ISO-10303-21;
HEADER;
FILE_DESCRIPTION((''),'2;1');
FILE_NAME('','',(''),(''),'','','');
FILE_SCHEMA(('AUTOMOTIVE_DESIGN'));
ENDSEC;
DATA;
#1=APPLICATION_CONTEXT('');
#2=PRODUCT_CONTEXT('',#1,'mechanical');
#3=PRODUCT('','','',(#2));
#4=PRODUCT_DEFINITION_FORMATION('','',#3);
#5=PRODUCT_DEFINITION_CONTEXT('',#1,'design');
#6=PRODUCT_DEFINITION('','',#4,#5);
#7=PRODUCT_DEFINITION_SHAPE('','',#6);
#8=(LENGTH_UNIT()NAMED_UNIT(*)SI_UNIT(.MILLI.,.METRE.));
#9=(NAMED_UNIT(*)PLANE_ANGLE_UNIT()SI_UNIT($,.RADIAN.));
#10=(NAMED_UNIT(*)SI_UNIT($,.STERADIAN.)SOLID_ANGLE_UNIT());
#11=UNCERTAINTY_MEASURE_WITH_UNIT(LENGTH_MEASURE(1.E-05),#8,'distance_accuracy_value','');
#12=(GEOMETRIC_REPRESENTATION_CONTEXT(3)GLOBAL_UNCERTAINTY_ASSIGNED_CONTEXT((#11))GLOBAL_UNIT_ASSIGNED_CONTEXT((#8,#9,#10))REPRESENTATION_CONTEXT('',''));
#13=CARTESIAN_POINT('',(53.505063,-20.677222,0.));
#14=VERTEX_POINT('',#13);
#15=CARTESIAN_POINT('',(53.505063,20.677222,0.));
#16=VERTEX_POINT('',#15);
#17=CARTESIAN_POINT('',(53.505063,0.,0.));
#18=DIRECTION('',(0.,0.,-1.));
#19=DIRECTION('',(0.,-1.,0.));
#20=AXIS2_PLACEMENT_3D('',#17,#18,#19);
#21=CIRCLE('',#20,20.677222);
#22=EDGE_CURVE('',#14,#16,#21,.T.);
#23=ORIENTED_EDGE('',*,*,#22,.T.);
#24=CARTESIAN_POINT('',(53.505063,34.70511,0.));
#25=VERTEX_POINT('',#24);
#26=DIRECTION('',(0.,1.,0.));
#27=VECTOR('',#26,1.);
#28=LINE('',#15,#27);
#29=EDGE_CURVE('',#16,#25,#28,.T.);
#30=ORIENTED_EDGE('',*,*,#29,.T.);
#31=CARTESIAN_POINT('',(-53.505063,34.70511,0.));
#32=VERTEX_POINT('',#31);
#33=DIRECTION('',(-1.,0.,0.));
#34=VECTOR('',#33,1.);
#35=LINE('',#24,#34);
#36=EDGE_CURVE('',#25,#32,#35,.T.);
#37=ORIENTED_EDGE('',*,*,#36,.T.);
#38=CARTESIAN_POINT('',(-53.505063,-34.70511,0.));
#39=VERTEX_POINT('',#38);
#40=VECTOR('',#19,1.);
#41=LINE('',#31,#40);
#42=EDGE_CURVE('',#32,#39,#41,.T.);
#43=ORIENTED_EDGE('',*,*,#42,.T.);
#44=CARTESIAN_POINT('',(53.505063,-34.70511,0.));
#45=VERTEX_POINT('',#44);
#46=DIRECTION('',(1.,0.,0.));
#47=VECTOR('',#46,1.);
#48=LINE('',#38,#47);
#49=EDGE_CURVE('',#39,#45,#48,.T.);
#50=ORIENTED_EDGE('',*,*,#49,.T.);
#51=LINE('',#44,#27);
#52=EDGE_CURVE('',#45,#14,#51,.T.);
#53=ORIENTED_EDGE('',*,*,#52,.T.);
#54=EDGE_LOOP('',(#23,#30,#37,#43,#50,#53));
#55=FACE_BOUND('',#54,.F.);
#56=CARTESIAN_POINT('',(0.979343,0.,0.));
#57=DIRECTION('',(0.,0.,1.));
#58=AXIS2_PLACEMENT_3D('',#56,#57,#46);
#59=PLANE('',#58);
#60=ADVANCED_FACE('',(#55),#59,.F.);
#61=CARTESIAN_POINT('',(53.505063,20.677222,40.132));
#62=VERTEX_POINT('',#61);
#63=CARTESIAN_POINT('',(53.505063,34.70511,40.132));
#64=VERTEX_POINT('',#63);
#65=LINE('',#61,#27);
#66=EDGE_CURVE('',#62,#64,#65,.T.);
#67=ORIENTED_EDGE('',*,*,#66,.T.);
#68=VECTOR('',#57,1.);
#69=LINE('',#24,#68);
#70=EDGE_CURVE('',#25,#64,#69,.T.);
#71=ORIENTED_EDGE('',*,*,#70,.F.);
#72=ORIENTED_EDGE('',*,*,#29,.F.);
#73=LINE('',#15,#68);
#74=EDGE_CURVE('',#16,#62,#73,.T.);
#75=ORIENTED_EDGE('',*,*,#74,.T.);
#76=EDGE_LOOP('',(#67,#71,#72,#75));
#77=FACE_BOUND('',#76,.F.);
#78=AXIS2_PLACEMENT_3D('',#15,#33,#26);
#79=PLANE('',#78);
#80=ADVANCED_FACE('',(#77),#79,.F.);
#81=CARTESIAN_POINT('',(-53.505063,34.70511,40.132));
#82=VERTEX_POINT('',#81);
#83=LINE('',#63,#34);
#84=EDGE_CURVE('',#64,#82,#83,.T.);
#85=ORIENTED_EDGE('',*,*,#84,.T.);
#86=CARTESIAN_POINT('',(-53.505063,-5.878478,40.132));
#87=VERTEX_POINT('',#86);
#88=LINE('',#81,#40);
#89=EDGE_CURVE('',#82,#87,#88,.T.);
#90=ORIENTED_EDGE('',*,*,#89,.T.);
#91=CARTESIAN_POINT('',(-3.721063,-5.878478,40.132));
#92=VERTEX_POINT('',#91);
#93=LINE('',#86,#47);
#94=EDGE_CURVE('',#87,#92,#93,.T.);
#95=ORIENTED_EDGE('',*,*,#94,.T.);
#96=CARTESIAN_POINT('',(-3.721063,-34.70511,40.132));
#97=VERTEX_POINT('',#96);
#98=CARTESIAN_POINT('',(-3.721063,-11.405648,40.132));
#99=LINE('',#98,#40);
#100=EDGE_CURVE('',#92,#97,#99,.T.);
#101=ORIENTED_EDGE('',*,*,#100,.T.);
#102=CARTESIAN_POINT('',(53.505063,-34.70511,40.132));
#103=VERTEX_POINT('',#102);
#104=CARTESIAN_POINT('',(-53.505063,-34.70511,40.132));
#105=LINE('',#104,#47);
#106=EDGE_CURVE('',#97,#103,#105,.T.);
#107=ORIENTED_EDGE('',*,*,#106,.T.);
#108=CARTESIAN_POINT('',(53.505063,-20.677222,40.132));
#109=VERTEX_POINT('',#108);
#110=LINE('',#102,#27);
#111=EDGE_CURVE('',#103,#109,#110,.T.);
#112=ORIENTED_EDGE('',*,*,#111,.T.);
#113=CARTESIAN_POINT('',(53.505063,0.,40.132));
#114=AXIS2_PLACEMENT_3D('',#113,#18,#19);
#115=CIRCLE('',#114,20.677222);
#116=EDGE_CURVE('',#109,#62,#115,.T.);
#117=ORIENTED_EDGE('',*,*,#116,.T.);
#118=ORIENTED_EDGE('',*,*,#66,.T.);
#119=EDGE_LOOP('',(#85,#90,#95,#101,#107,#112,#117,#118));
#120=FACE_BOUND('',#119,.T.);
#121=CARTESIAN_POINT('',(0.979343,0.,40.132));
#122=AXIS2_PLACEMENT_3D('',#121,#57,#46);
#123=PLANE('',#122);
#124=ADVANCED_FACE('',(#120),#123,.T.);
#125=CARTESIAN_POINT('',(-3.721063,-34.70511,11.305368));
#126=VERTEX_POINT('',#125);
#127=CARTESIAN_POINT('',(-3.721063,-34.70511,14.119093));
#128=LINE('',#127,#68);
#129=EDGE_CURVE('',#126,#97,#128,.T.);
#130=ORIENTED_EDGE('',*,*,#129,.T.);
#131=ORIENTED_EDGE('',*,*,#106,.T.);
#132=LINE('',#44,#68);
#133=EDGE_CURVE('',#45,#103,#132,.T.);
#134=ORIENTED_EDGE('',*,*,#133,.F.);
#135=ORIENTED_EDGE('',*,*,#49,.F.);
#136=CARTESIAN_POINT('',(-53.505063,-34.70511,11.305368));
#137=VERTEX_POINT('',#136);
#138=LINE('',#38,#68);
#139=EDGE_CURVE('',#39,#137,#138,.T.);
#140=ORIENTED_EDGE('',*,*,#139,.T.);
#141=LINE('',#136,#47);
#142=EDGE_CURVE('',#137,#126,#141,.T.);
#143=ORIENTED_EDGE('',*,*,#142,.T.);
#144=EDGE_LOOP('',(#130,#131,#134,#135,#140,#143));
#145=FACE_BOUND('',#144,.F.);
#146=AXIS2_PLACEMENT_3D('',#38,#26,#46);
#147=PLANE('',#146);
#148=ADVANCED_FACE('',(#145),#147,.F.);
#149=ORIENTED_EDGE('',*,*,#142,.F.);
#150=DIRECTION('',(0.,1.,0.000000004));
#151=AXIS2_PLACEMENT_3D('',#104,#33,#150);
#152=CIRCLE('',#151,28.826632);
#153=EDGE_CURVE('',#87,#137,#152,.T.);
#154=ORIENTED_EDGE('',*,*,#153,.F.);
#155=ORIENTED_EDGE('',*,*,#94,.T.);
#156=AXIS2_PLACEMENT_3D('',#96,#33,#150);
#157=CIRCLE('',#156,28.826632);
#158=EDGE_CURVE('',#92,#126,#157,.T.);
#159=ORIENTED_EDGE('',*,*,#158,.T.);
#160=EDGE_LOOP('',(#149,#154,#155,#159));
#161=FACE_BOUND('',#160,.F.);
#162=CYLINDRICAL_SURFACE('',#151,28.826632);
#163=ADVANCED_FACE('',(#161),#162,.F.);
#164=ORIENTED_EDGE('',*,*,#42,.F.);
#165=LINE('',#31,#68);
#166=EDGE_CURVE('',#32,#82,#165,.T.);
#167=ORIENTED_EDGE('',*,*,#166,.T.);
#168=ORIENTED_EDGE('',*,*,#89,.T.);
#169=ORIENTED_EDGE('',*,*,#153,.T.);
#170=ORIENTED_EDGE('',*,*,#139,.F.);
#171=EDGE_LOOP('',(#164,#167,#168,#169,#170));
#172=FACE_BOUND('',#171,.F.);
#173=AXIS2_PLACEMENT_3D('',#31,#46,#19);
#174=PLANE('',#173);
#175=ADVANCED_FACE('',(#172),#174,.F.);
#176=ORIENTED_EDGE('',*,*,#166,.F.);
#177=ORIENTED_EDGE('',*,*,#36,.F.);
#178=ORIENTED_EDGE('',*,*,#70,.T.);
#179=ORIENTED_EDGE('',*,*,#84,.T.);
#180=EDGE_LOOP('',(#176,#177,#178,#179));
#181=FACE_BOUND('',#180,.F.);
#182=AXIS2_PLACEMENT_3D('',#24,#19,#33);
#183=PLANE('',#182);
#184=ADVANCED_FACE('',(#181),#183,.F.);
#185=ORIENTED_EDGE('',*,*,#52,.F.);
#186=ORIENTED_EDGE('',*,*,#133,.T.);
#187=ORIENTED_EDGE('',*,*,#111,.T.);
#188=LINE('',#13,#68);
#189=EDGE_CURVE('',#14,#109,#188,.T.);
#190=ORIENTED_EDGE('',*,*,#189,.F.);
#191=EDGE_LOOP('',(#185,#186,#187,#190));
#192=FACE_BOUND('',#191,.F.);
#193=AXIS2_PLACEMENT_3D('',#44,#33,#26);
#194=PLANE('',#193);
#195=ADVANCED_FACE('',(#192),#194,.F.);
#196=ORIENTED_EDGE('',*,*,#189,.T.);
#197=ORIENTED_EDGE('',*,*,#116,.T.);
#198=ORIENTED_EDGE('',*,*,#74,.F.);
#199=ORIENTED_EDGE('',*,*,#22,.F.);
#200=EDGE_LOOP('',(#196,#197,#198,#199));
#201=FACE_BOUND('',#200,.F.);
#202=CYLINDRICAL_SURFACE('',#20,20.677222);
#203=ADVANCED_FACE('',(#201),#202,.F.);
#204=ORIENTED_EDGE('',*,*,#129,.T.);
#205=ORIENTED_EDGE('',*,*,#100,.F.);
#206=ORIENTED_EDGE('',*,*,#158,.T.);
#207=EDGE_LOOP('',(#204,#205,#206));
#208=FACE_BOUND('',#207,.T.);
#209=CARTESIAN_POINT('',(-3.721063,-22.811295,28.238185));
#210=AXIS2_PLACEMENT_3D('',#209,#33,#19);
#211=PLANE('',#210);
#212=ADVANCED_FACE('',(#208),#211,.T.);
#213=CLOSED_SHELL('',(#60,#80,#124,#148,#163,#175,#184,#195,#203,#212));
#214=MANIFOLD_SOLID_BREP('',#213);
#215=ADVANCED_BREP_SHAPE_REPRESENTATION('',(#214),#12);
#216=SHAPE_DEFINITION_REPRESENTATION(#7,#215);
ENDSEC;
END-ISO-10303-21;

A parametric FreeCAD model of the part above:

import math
import FreeCAD as App
import Part
import Sketcher

V = App.Vector
Q = App.Units.Quantity

doc = App.newDocument("Part")
body = doc.addObject("PartDesign::Body", "Body")

sketch1 = body.newObject("Sketcher::SketchObject", "Sketch")
sketch1.AttachmentSupport = (doc.getObject("XY_Plane"), [""])
sketch1.MapMode = "FlatFace"
sketch1.addGeometry([
    Part.LineSegment(V(-54, -35, 0), V(54, -35, 0)),
    Part.LineSegment(V(54, -35, 0), V(54, -21, 0)),
    Part.ArcOfCircle(Part.Circle(V(54, 0, 0), V(0, 0, 1), 21), math.radians(90), math.radians(270)),
    Part.LineSegment(V(54, 21, 0), V(54, 35, 0)),
    Part.LineSegment(V(54, 35, 0), V(-54, 35, 0)),
    Part.LineSegment(V(-54, 35, 0), V(-54, -35, 0)),
], False)
sketch1.addConstraint([
    Sketcher.Constraint("Coincident", 0, 2, 1, 1),
    Sketcher.Constraint("Coincident", 1, 2, 2, 2),
    Sketcher.Constraint("Coincident", 2, 1, 3, 1),
    Sketcher.Constraint("Coincident", 3, 2, 4, 1),
    Sketcher.Constraint("Coincident", 4, 2, 5, 1),
    Sketcher.Constraint("Coincident", 5, 2, 0, 1),
    Sketcher.Constraint("Horizontal", 0),
    Sketcher.Constraint("Vertical", 1),
    Sketcher.Constraint("Vertical", 3),
    Sketcher.Constraint("Horizontal", 4),
    Sketcher.Constraint("Vertical", 5),
    Sketcher.Constraint("Symmetric", 0, 2, 4, 2, -1, 1),
    Sketcher.Constraint("Symmetric", 1, 2, 2, 1, -1),
    Sketcher.Constraint("Vertical", 2, 3, 0, 2),
    Sketcher.Constraint("Radius", 2, Q("20.677222 mm")),
    Sketcher.Constraint("DistanceY", 5, 2, 5, 1, Q("69.41022 mm")),
    Sketcher.Constraint("DistanceX", 0, 1, 0, 2, Q("107.010126 mm")),
])
pad1 = body.newObject("PartDesign::Pad", "Pad")
pad1.Profile = sketch1
pad1.Length = Q("1.58 in")

sketch2 = body.newObject("Sketcher::SketchObject", "Sketch001")
sketch2.AttachmentSupport = (doc.getObject("YZ_Plane"), [""])
sketch2.MapMode = "FlatFace"
sketch2.AttachmentOffset = App.Placement(V(0, 0, -53.505063), App.Rotation())
sketch2.addGeometry([
    Part.ArcOfCircle(Part.Circle(V(-35, 40, 0), V(0, 0, 1), 29), math.radians(-90), math.radians(0)),
    Part.ArcOfCircle(Part.Circle(V(-35, 40, 0), V(0, 0, 1), 29), math.radians(180), math.radians(270)),
    Part.ArcOfCircle(Part.Circle(V(-35, 40, 0), V(0, 0, 1), 29), math.radians(0), math.radians(180)),
], False)
sketch2.addConstraint([
    Sketcher.Constraint("Tangent", 0, 1, 1, 2),
    Sketcher.Constraint("Tangent", 1, 1, 2, 2),
    Sketcher.Constraint("Tangent", 2, 1, 0, 2),
    Sketcher.Constraint("Horizontal", 2, 3, 1, 1),
    Sketcher.Constraint("Horizontal", 1, 1, 2, 1),
    Sketcher.Constraint("Vertical", 2, 3, 0, 1),
    Sketcher.Constraint("DistanceY", -1, 1, 0, 3, Q("1.58 in")),
    Sketcher.Constraint("Radius", 0, Q("28.826632 mm")),
    Sketcher.Constraint("DistanceX", 0, 3, -1, 1, Q("34.70511 mm")),
])
pocket1 = body.newObject("PartDesign::Pocket", "Pocket")
pocket1.Profile = sketch2
pocket1.Length = Q("1.96 in")
pocket1.Reversed = True

doc.recompute()
